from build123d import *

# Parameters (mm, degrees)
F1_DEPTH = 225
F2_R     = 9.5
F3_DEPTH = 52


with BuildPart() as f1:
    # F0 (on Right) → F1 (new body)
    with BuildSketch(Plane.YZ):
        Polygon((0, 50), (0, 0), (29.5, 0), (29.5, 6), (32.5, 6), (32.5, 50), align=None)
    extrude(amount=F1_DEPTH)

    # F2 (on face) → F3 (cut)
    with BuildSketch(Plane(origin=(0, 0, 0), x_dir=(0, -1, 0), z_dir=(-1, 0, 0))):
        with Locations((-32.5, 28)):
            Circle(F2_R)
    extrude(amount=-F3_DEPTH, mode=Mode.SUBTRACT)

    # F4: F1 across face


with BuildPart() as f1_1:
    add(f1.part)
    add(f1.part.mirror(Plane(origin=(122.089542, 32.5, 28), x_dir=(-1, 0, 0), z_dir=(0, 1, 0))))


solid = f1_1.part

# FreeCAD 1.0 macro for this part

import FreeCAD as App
import Part
import Sketcher

V = App.Vector
Q = App.Units.Quantity


def add_polygon(sketch, points):
    """Adds a closed chain of lines whose ends are joined by coincident constraints."""
    first, n = sketch.GeometryCount, len(points)
    for a, b in zip(points, points[1:] + points[:1]):
        sketch.addGeometry(Part.LineSegment(App.Vector(*a, 0), App.Vector(*b, 0)), False)
    for i in range(n):
        sketch.addConstraint(Sketcher.Constraint("Coincident", first + i, 2, first + (i + 1) % n, 1))

doc = App.newDocument("Part")
body = doc.addObject("PartDesign::Body", "Body")

sketch1 = body.newObject("Sketcher::SketchObject", "Sketch")
sketch1.AttachmentSupport = (doc.getObject("YZ_Plane"), [""])
sketch1.MapMode = "FlatFace"
add_polygon(sketch1, [(0, 50), (0, 0), (29.5, 0), (29.5, 6), (32.5, 6), (32.5, 50)])
sketch1.addConstraint(Sketcher.Constraint("Vertical", 0))
sketch1.addConstraint(Sketcher.Constraint("Horizontal", 1))
sketch1.addConstraint(Sketcher.Constraint("Vertical", 2))
sketch1.addConstraint(Sketcher.Constraint("Horizontal", 3))
sketch1.addConstraint(Sketcher.Constraint("Vertical", 4))
sketch1.addConstraint(Sketcher.Constraint("Horizontal", 5))
sketch1.addConstraint(Sketcher.Constraint("Coincident", 0, 2, -1, 1))
sketch1.addConstraint(Sketcher.Constraint("DistanceX", 3, 1, 3, 2, Q("3 mm")))
sketch1.addConstraint(Sketcher.Constraint("DistanceY", 0, 2, 0, 1, Q("50 mm")))
sketch1.addConstraint(Sketcher.Constraint("DistanceY", 2, 1, 2, 2, Q("6 mm")))
sketch1.addConstraint(Sketcher.Constraint("DistanceX", 1, 1, 1, 2, Q("29.5 mm")))
pad1 = body.newObject("PartDesign::Pad", "Pad")
pad1.Profile = sketch1
pad1.Length = 225

sketch2 = body.newObject("Sketcher::SketchObject", "Sketch001")
sketch2.AttachmentSupport = (doc.getObject("YZ_Plane"), [""])
sketch2.MapMode = "FlatFace"
sketch2.addGeometry(Part.Circle(V(32, 28, 0), V(0, 0, 1), 10), False)
sketch2.addConstraint(Sketcher.Constraint("Diameter", 0, Q("19 mm")))
sketch2.addConstraint(Sketcher.Constraint("DistanceY", -1, 1, 0, 3, Q("28 mm")))
sketch2.addConstraint(Sketcher.Constraint("DistanceX", -1, 1, 0, 3, Q("32.5 mm")))
pocket1 = body.newObject("PartDesign::Pocket", "Pocket")
pocket1.Profile = sketch2
pocket1.Length = 52
pocket1.Reversed = True
body2 = doc.addObject("PartDesign::Body", "Body001")
doc.recompute()

body2.BaseFeature = body
doc.recompute()

mirroring = doc.addObject("Part::Mirroring", "Mirroring")
mirroring.Source = body
mirroring.Base = V(122.089542, 32.5, 28)
mirroring.Normal = V(0, 1, 0)
body3 = doc.addObject("PartDesign::Body", "Body002")
body3.BaseFeature = mirroring
boolean = body2.newObject("PartDesign::Boolean", "Boolean")
boolean.Type = "Fuse"
boolean.addObjects([body3])
doc.recompute()
mirroring.Visibility = False

doc.recompute()
